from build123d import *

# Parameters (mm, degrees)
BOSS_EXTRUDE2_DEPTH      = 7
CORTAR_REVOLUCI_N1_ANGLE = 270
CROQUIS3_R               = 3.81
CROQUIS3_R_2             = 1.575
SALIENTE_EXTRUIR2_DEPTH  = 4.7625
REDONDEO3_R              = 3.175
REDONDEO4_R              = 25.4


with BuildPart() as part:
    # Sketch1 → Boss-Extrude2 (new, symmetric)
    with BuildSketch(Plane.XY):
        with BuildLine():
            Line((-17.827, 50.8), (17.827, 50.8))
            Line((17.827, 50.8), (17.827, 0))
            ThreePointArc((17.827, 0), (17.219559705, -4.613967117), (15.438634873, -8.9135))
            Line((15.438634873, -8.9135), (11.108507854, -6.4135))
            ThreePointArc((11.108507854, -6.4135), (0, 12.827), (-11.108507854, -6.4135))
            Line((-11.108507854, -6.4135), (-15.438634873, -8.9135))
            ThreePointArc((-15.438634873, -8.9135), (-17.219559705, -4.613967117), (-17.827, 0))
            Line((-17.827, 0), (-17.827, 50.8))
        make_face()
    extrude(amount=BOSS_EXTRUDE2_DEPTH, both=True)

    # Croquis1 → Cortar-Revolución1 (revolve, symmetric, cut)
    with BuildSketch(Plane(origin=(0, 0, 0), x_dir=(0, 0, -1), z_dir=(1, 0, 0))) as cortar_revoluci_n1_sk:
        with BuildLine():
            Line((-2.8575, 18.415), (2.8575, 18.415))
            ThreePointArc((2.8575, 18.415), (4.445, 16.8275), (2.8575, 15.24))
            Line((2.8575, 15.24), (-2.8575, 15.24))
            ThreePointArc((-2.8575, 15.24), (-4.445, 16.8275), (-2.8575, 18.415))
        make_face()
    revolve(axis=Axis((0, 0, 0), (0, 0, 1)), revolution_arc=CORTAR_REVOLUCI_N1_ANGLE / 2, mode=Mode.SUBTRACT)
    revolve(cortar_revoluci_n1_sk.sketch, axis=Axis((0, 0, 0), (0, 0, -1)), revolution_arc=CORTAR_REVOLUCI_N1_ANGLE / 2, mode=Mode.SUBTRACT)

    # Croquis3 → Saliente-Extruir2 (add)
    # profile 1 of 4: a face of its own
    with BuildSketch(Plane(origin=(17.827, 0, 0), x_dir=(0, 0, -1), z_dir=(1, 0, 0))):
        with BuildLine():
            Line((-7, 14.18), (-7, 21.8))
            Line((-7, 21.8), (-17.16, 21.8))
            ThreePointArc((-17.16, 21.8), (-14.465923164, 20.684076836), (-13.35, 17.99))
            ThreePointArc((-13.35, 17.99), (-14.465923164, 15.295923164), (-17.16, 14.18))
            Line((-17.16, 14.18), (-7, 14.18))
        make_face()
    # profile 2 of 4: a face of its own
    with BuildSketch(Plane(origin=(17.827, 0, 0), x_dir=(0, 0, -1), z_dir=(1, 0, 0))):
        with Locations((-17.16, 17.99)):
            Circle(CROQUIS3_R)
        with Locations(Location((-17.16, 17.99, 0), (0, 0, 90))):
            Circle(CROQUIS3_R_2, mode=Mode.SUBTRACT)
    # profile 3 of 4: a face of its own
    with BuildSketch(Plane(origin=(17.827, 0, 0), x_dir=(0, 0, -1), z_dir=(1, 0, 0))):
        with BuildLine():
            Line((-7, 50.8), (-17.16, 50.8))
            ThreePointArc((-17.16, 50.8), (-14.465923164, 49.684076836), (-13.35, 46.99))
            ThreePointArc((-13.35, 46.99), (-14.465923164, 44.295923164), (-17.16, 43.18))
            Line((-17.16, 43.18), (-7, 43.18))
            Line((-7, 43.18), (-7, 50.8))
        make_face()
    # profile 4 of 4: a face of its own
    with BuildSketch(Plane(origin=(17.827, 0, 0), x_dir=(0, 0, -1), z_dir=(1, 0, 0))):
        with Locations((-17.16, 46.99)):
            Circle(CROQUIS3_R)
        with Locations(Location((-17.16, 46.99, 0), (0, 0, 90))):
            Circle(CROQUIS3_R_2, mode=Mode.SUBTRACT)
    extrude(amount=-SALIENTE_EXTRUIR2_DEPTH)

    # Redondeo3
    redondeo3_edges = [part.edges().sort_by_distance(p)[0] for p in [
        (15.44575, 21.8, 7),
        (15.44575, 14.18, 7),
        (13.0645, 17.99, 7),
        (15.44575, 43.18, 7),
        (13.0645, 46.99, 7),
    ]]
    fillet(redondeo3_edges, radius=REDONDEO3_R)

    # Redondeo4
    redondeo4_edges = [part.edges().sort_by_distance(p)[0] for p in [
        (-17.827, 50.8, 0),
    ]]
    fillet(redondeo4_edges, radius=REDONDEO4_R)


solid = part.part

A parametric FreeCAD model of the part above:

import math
import FreeCAD as App
import Part
import Sketcher
from FreeCAD import Vector
Q = App.Units.Quantity


def edges_at(feature, points):
    """Names of the edges that pass closest to the given points."""
    edges = feature.Shape.Edges
    near = lambda p: min(range(len(edges)), key=lambda i: edges[i].distToShape(Part.Vertex(*p))[0])
    return sorted({f"Edge{near(p) + 1}" for p in points})

doc = App.newDocument("Part")
body = doc.addObject("PartDesign::Body", "Body")

# Sketch on XY plane
sketch1 = body.newObject("Sketcher::SketchObject", "Sketch")
sketch1.AttachmentSupport = (doc.getObject("XY_Plane"), [""])
sketch1.MapMode = "FlatFace"
sketch1.addGeometry([
    Part.LineSegment(Vector(18, 51, 0), Vector(-18, 51, 0)),  # 0
    Part.LineSegment(Vector(-18, 51, 0), Vector(-18, 0, 0)),  # 1
    Part.ArcOfCircle(Part.Circle(Vector(0, 0, 0), Vector(0, 0, 1), 18), math.radians(-180), math.radians(-150)),  # 2
    Part.LineSegment(Vector(-15, -9, 0), Vector(-11, -6, 0)),  # 3
    Part.ArcOfCircle(Part.Circle(Vector(0, 0, 0), Vector(0, 0, 1), 13), math.radians(-30), math.radians(210)),  # 4
    Part.LineSegment(Vector(11, -6, 0), Vector(15, -9, 0)),  # 5
    Part.ArcOfCircle(Part.Circle(Vector(0, 0, 0), Vector(0, 0, 1), 18), math.radians(-30), math.radians(0)),  # 6
    Part.LineSegment(Vector(18, 0, 0), Vector(18, 51, 0)),  # 7
], False)
sketch1.addConstraint([
    Sketcher.Constraint("Coincident", 0, 2, 1, 1),
    Sketcher.Constraint("Tangent", 1, 2, 2, 1),
    Sketcher.Constraint("Coincident", 2, 2, 3, 1),
    Sketcher.Constraint("Coincident", 3, 2, 4, 2),
    Sketcher.Constraint("Coincident", 4, 1, 5, 1),
    Sketcher.Constraint("Coincident", 5, 2, 6, 1),
    Sketcher.Constraint("Tangent", 6, 2, 7, 1),
    Sketcher.Constraint("Coincident", 7, 2, 0, 1),
    Sketcher.Constraint("Horizontal", 0),
    Sketcher.Constraint("Vertical", 1),
    Sketcher.Constraint("Vertical", 7),
    Sketcher.Constraint("Coincident", 2, 3, -1, 1),
    Sketcher.Constraint("Coincident", 4, 3, -1, 1),
    Sketcher.Constraint("Coincident", 6, 3, -1, 1),
    Sketcher.Constraint("Equal", 2, 6),
    Sketcher.Constraint("Horizontal", 3, 2, 4, 1),
    Sketcher.Constraint("Horizontal", 2, 2, 5, 2),
    Sketcher.Constraint("DistanceY", 1, 2, 1, 1, Q("2 in")),
    Sketcher.Constraint("Angle", 3, Q("30 deg")),
    Sketcher.Constraint("Radius", 4, Q("0.505 in")),
    Sketcher.Constraint("Radius", 2, Q("17.827 mm")),
    Sketcher.Constraint("DistanceY", 3, 2, -1, 1, Q("0.2525 in")),
])
pad1 = body.newObject("PartDesign::Pad", "Pad")
pad1.Profile = sketch1
pad1.Length = 14
pad1.Midplane = True

# Sketch on YZ plane
sketch2 = body.newObject("Sketcher::SketchObject", "Sketch001")
sketch2.AttachmentSupport = (doc.getObject("YZ_Plane"), [""])
sketch2.MapMode = "FlatFace"
sketch2.addGeometry([
    Part.LineSegment(Vector(18.4, -2.9, 0), Vector(18.4, 2.9, 0)),
    Part.ArcOfCircle(Part.Circle(Vector(16.8, 2.9, 0), Vector(0, 0, 1), 1.6), math.radians(0), math.radians(180)),
    Part.LineSegment(Vector(15.2, 2.9, 0), Vector(15.2, -2.9, 0)),
    Part.ArcOfCircle(Part.Circle(Vector(16.8, -2.9, 0), Vector(0, 0, 1), 1.6), math.radians(180), math.radians(360)),
], False)
sketch2.addConstraint([
    Sketcher.Constraint("Tangent", 0, 2, 1, 1),
    Sketcher.Constraint("Tangent", 1, 2, 2, 1),
    Sketcher.Constraint("Tangent", 2, 2, 3, 1),
    Sketcher.Constraint("Tangent", 3, 2, 0, 1),
    Sketcher.Constraint("Vertical", 0),
    Sketcher.Constraint("Vertical", 2),
    Sketcher.Constraint("Radius", 1, Q("0.0625 in")),
    Sketcher.Constraint("DistanceX", -1, 1, 1, 2, Q("0.6 in")),
    Sketcher.Constraint("DistanceY", 0, 1, 0, 2, Q("0.225 in")),
    Sketcher.Constraint("DistanceY", -1, 1, 1, 3, Q("0.1125 in")),
])
groove = body.newObject("PartDesign::Groove", "Groove")
groove.Profile = sketch2
groove.ReferenceAxis = (sketch2, ["V_Axis"])
groove.Angle = 135

# Sketch on YZ plane
sketch3 = body.newObject("Sketcher::SketchObject", "Sketch002")
sketch3.AttachmentSupport = (doc.getObject("YZ_Plane"), [""])
sketch3.MapMode = "FlatFace"
sketch3.addGeometry([
    Part.LineSegment(Vector(18.4, -2.9, 0), Vector(18.4, 2.9, 0)),
    Part.ArcOfCircle(Part.Circle(Vector(16.8, 2.9, 0), Vector(0, 0, 1), 1.6), math.radians(0), math.radians(180)),
    Part.LineSegment(Vector(15.2, 2.9, 0), Vector(15.2, -2.9, 0)),
    Part.ArcOfCircle(Part.Circle(Vector(16.8, -2.9, 0), Vector(0, 0, 1), 1.6), math.radians(180), math.radians(360)),
], False)
sketch3.addConstraint([
    Sketcher.Constraint("Tangent", 0, 2, 1, 1),
    Sketcher.Constraint("Tangent", 1, 2, 2, 1),
    Sketcher.Constraint("Tangent", 2, 2, 3, 1),
    Sketcher.Constraint("Tangent", 3, 2, 0, 1),
    Sketcher.Constraint("Vertical", 0),
    Sketcher.Constraint("Vertical", 2),
    Sketcher.Constraint("Radius", 1, Q("0.0625 in")),
    Sketcher.Constraint("DistanceX", -1, 1, 1, 2, Q("0.6 in")),
    Sketcher.Constraint("DistanceY", 0, 1, 0, 2, Q("0.225 in")),
    Sketcher.Constraint("DistanceY", -1, 1, 1, 3, Q("0.1125 in")),
])
groove2 = body.newObject("PartDesign::Groove", "Groove001")
groove2.Profile = sketch3
groove2.ReferenceAxis = (sketch3, ["V_Axis"])
groove2.Angle = 135
groove2.Reversed = True

# Sketch on YZ plane
sketch4 = body.newObject("Sketcher::SketchObject", "Sketch003")
sketch4.AttachmentSupport = (doc.getObject("YZ_Plane"), [""])
sketch4.MapMode = "FlatFace"
sketch4.AttachmentOffset = App.Placement(Vector(0, 0, 17.827), App.Rotation())
sketch4.addGeometry([
    Part.LineSegment(Vector(14.2, 7, 0), Vector(21.8, 7, 0)),  # 0
    Part.LineSegment(Vector(21.8, 7, 0), Vector(21.8, 17.2, 0)),  # 1
    Part.ArcOfCircle(Part.Circle(Vector(18, 17.2, 0), Vector(0, 0, 1), 3.8), math.radians(0), math.radians(180)),  # 2
    Part.LineSegment(Vector(14.2, 17.2, 0), Vector(14.2, 7, 0)),  # 3
    Part.Circle(Vector(18, 17.2, 0), Vector(0, 0, 1), 1.6),  # 4
    Part.LineSegment(Vector(50.8, 7, 0), Vector(50.8, 17.2, 0)),  # 5
    Part.ArcOfCircle(Part.Circle(Vector(47, 17.2, 0), Vector(0, 0, 1), 3.8), math.radians(0), math.radians(180)),  # 6
    Part.LineSegment(Vector(43.2, 17.2, 0), Vector(43.2, 7, 0)),  # 7
    Part.LineSegment(Vector(43.2, 7, 0), Vector(50.8, 7, 0)),  # 8
    Part.Circle(Vector(47, 17.2, 0), Vector(0, 0, 1), 1.6),  # 9
], False)
sketch4.addConstraint([
    Sketcher.Constraint("Coincident", 0, 2, 1, 1),
    Sketcher.Constraint("Tangent", 1, 2, 2, 1),
    Sketcher.Constraint("Tangent", 2, 2, 3, 1),
    Sketcher.Constraint("Coincident", 3, 2, 0, 1),
    Sketcher.Constraint("Tangent", 5, 2, 6, 1),
    Sketcher.Constraint("Tangent", 6, 2, 7, 1),
    Sketcher.Constraint("Coincident", 7, 2, 8, 1),
    Sketcher.Constraint("Coincident", 8, 2, 5, 1),
    Sketcher.Constraint("Horizontal", 0),
    Sketcher.Constraint("Vertical", 1),
    Sketcher.Constraint("Vertical", 3),
    Sketcher.Constraint("Vertical", 5),
    Sketcher.Constraint("Vertical", 7),
    Sketcher.Constraint("Horizontal", 8),
    Sketcher.Constraint("Coincident", 4, 3, 2, 3),
    Sketcher.Constraint("Coincident", 9, 3, 6, 3),
    Sketcher.Constraint("Equal", 2, 6),
    Sketcher.Constraint("Equal", 4, 9),
    Sketcher.Constraint("Horizontal", 4, 3, 6, 3),
    Sketcher.Constraint("Horizontal", 3, 2, 7, 2),
    Sketcher.Constraint("Radius", 2, Q("0.15 in")),
    Sketcher.Constraint("DistanceY", 1, 1, 1, 2, Q("0.4 in")),
    Sketcher.Constraint("DistanceX", -1, 1, 5, 2, Q("2 in")),
    Sketcher.Constraint("Diameter", 4, Q("3.15 mm")),
    Sketcher.Constraint("DistanceX", -1, 1, 2, 3, Q("17.99 mm")),
    Sketcher.Constraint("DistanceY", -1, 1, 2, 3, Q("17.16 mm")),
])
pad2 = body.newObject("PartDesign::Pad", "Pad001")
pad2.Profile = sketch4
pad2.Length = Q("0.1875 in")
pad2.Reversed = True
doc.recompute()

fillet = body.newObject("PartDesign::Fillet", "Fillet")
fillet.Base = (pad2, edges_at(pad2, [
    (15.446, 21.8, 7),
    (15.446, 14.18, 7),
    (13.065, 17.99, 7),
    (15.446, 43.18, 7),
    (13.065, 46.99, 7),
]))
fillet.Radius = Q("0.125 in")
doc.recompute()

fillet2 = body.newObject("PartDesign::Fillet", "Fillet001")
fillet2.Base = (fillet, edges_at(fillet, [(-17.827, 50.8, 0)]))
fillet2.Radius = Q("1 in")

doc.recompute()
